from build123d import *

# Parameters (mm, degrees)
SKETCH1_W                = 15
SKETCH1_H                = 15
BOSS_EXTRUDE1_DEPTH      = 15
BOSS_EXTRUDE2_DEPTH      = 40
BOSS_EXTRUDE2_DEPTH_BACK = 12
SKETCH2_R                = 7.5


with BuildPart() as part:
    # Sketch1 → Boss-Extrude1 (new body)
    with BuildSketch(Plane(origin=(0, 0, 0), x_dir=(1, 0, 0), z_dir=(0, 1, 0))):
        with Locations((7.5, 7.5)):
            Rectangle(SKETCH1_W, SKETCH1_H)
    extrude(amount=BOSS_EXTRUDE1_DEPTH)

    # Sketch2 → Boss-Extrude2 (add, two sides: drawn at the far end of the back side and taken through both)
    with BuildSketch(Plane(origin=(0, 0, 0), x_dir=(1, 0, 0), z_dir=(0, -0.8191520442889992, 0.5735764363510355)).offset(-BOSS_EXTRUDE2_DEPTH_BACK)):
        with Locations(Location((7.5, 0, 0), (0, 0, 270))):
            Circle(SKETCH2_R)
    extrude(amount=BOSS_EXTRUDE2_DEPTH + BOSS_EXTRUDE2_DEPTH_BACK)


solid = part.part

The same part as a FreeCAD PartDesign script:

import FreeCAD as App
import Part
import Sketcher
from FreeCAD import Vector

doc = App.newDocument("Part")
body = doc.addObject("PartDesign::Body", "Body")

# Sketch on XZ plane
sketch1 = body.newObject("Sketcher::SketchObject", "Sketch")
sketch1.AttachmentSupport = (doc.getObject("XZ_Plane"), [""])
sketch1.MapMode = "FlatFace"
sketch1.addGeometry(Part.LineSegment(Vector(0, -15, 0), Vector(0, 0, 0)), False)
sketch1.addGeometry(Part.LineSegment(Vector(0, 0, 0), Vector(15, 0, 0)), False)
sketch1.addGeometry(Part.LineSegment(Vector(15, 0, 0), Vector(15, -15, 0)), False)
sketch1.addGeometry(Part.LineSegment(Vector(15, -15, 0), Vector(0, -15, 0)), False)
sketch1.addConstraint(Sketcher.Constraint("Coincident", 0, 2, 1, 1))
sketch1.addConstraint(Sketcher.Constraint("Coincident", 1, 2, 2, 1))
sketch1.addConstraint(Sketcher.Constraint("Coincident", 2, 2, 3, 1))
sketch1.addConstraint(Sketcher.Constraint("Coincident", 3, 2, 0, 1))
sketch1.addConstraint(Sketcher.Constraint("Vertical", 0))
sketch1.addConstraint(Sketcher.Constraint("Horizontal", 1))
sketch1.addConstraint(Sketcher.Constraint("Vertical", 2))
sketch1.addConstraint(Sketcher.Constraint("Horizontal", 3))
sketch1.addConstraint(Sketcher.Constraint("Coincident", 0, 2, -1, 1))
sketch1.addConstraint(Sketcher.Constraint("Equal", 3, 0))
sketch1.addConstraint(Sketcher.Constraint("DistanceX", 1, 1, 1, 2, 15.0))
pad1 = body.newObject("PartDesign::Pad", "Pad")
pad1.Profile = sketch1
pad1.Length = 15
pad1.Reversed = True

# Sketch on an angled plane
sketch2 = body.newObject("Sketcher::SketchObject", "Sketch001")
sketch2.Placement = App.Placement(Vector(0, 0, 0), App.Rotation(Vector(1, 0, 0), Vector(0, 0.573576436, 0.819152044), Vector(0, -0.819152044, 0.573576436), "ZXY"))
sketch2.addGeometry(Part.Circle(Vector(8, 0, 0), Vector(0, 0, 1), 8), False)
sketch2.addConstraint(Sketcher.Constraint("PointOnObject", 0, 3, -1))
sketch2.addConstraint(Sketcher.Constraint("Diameter", 0, 15.0))
sketch2.addConstraint(Sketcher.Constraint("DistanceX", -1, 1, 0, 3, 7.5))
pad2 = body.newObject("PartDesign::Pad", "Pad001")
pad2.Profile = sketch2
pad2.Type = "TwoLengths"
pad2.Length = 40
pad2.Length2 = 12

doc.recompute()
